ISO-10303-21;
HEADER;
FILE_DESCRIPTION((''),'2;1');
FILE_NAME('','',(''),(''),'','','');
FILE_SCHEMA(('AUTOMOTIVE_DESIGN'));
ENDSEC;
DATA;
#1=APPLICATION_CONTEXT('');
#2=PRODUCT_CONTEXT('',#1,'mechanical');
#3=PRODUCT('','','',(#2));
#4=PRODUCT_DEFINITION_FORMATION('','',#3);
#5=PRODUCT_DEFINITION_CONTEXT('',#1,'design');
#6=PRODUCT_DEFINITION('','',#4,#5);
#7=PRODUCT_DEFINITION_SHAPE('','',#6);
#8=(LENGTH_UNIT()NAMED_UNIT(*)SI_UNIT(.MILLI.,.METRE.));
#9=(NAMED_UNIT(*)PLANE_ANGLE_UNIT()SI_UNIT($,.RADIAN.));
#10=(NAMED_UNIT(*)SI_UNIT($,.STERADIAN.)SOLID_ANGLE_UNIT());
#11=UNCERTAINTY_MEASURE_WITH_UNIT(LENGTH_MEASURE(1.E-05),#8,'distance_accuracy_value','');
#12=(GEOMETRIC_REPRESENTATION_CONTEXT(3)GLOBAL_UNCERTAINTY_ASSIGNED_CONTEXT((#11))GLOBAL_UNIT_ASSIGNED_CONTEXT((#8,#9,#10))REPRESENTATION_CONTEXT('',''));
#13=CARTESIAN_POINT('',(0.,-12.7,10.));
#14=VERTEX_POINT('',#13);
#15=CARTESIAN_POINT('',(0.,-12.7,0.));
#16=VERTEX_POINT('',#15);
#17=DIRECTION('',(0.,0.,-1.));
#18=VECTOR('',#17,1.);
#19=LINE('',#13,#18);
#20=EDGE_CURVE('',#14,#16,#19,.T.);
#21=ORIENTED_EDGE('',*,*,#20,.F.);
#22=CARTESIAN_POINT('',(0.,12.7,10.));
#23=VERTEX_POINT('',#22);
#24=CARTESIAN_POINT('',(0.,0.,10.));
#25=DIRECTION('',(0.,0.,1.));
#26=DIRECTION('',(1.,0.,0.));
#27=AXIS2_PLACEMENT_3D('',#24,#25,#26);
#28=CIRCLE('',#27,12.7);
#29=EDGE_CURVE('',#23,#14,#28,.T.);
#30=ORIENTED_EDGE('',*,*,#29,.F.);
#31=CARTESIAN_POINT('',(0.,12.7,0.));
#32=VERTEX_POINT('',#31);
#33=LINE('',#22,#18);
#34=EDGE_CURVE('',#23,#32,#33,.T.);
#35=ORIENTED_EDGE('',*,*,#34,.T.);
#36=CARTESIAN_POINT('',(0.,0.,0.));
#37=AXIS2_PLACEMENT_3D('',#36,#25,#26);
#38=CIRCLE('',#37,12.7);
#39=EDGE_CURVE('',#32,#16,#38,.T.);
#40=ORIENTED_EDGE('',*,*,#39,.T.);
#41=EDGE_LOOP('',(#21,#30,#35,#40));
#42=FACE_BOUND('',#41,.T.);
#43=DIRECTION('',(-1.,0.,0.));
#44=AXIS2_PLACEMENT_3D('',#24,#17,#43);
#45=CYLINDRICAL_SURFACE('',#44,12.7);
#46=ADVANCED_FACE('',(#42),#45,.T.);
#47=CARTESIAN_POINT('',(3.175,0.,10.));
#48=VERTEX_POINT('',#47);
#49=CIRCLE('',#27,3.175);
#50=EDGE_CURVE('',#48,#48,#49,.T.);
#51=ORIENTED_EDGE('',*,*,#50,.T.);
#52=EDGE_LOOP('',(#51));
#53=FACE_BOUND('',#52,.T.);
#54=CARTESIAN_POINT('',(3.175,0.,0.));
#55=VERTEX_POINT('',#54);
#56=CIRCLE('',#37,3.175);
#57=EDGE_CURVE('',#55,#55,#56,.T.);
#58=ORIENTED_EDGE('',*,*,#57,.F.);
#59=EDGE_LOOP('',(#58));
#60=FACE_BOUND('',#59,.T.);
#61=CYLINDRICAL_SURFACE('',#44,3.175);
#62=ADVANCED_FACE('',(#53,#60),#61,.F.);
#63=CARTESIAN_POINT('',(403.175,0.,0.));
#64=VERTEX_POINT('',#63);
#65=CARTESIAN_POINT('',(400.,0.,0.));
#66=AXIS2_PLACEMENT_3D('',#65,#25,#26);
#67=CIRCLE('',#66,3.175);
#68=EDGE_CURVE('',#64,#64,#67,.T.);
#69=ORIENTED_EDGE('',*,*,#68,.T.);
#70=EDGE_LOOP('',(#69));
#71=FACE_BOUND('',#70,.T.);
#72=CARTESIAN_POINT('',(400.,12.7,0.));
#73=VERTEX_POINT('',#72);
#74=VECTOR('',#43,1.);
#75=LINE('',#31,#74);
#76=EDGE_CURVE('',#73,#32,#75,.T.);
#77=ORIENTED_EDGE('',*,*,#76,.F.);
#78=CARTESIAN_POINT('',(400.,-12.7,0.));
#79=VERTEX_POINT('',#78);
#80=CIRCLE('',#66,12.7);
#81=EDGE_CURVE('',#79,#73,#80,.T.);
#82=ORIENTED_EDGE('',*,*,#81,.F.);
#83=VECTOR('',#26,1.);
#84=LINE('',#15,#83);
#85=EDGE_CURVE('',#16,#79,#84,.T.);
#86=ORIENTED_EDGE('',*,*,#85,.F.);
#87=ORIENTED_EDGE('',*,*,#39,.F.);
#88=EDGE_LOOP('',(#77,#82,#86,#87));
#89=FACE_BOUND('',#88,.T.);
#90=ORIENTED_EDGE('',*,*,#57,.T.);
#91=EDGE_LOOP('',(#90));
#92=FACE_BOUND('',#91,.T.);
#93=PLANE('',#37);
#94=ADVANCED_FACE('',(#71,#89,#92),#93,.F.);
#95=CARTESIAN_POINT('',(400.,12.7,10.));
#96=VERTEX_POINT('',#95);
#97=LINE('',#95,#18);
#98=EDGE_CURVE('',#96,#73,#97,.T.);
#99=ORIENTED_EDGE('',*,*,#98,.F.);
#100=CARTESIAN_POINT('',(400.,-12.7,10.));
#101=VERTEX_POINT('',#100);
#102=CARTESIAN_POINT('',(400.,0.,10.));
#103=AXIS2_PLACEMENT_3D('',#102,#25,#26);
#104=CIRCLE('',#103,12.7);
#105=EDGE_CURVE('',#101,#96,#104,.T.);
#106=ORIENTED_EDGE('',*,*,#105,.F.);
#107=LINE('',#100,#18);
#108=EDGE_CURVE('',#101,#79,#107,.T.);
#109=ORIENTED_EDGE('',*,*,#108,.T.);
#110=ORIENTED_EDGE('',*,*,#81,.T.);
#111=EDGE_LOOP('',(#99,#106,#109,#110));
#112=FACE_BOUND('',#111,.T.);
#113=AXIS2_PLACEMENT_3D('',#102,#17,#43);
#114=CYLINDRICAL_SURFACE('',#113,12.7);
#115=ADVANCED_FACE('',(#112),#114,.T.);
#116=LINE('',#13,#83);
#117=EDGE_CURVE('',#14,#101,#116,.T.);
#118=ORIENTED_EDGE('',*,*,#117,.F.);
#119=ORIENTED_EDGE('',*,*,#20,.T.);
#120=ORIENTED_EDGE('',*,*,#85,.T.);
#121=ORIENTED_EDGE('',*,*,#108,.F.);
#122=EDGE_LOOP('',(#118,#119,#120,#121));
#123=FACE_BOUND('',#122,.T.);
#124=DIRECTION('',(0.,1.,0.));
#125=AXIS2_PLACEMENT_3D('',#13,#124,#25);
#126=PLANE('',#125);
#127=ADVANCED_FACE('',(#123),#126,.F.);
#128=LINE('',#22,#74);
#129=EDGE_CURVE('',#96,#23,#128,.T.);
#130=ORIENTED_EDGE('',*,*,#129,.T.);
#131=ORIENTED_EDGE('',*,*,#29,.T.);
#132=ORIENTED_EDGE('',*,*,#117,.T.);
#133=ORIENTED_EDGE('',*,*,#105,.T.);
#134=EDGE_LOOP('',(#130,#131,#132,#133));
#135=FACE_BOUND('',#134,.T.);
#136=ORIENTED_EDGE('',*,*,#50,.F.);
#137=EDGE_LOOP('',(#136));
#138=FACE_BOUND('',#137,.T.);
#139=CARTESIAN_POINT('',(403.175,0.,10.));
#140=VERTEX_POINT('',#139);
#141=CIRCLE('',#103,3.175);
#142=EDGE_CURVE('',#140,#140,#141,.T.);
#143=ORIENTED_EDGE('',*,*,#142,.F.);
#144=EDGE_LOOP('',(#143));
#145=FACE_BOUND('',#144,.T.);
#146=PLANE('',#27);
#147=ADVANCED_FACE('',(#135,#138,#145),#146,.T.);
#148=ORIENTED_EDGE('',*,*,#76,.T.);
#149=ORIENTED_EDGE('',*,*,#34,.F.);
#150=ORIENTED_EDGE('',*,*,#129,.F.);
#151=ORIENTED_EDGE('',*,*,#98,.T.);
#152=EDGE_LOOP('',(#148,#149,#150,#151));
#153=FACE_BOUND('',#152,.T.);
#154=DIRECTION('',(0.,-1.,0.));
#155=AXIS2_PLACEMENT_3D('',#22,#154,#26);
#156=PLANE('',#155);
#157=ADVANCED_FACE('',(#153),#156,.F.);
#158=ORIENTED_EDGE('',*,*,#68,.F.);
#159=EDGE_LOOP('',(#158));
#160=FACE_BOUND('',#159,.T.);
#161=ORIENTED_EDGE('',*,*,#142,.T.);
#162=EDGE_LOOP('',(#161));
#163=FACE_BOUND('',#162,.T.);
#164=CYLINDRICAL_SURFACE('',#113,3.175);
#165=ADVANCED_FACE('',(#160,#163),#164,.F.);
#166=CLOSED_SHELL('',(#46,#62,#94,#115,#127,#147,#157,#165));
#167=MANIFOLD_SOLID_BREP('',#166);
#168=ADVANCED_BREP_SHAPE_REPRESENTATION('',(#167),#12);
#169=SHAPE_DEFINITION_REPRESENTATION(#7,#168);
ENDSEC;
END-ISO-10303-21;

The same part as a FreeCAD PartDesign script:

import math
import FreeCAD as App
import Part
import Sketcher

V = App.Vector

doc = App.newDocument("Part")
body = doc.addObject("PartDesign::Body", "Body")

# Sketch on XY plane
sketch1 = doc.addObject("Sketcher::SketchObject", "Sketch")
body.addObject(sketch1)
sketch1.AttachmentSupport = (doc.XY_Plane, [""])
sketch1.MapMode = "FlatFace"
sketch1.addGeometry([
    Part.LineSegment(V(400, 12.7, 0), V(0, 12.7, 0)),  # 0
    Part.ArcOfCircle(Part.Circle(V(0, 0, 0), V(0, 0, 1), 12.7), math.radians(90), math.radians(270)),  # 1
    Part.LineSegment(V(0, -12.7, 0), V(400, -12.7, 0)),  # 2
    Part.ArcOfCircle(Part.Circle(V(400, 0, 0), V(0, 0, 1), 12.7), math.radians(-90), math.radians(90)),  # 3
    Part.Circle(V(400, 0, 0), V(0, 0, 1), 3.175),  # 4
    Part.Circle(V(0, 0, 0), V(0, 0, 1), 3.175),  # 5
], False)
sketch1.addConstraint([
    Sketcher.Constraint("Tangent", 0, 2, 1, 1),
    Sketcher.Constraint("Tangent", 1, 2, 2, 1),
    Sketcher.Constraint("Tangent", 2, 2, 3, 1),
    Sketcher.Constraint("Tangent", 3, 2, 0, 1),
    Sketcher.Constraint("Horizontal", 0),
    Sketcher.Constraint("Horizontal", 2),
    Sketcher.Constraint("Coincident", 1, 3, -1, 1),
    Sketcher.Constraint("Coincident", 5, 3, -1, 1),
    Sketcher.Constraint("Coincident", 4, 3, 3, 3),
    Sketcher.Constraint("Equal", 4, 5),
    Sketcher.Constraint("Radius", 1, 12.7),
    Sketcher.Constraint("Diameter", 4, 6.35),
    Sketcher.Constraint("DistanceX", 0, 2, 0, 1, 400.0),
])
pad1 = doc.addObject("PartDesign::Pad", "Pad")
body.addObject(pad1)
pad1.Profile = sketch1
pad1.Length = 10

doc.recompute()
